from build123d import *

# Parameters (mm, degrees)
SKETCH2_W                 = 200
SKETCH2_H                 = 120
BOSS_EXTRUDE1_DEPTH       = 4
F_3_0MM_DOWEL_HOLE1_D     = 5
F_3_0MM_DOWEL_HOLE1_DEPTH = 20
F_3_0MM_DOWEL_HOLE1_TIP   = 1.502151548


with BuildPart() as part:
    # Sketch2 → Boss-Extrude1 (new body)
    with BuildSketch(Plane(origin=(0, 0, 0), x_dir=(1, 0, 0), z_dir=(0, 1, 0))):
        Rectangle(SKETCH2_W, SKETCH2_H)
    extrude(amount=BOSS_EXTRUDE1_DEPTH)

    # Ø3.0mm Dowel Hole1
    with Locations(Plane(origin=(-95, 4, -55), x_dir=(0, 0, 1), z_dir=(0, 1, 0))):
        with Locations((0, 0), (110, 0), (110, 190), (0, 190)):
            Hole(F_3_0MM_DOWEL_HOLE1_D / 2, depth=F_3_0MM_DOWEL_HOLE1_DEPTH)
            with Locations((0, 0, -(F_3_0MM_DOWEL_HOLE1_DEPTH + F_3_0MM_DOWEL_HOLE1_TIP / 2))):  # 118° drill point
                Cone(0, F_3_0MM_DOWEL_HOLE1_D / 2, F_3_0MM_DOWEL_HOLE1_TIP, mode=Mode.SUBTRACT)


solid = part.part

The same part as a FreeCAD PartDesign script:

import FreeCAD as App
import Part
import Sketcher
from FreeCAD import Vector

doc = App.newDocument("Part")
body = doc.addObject("PartDesign::Body", "Body")

sketch1 = body.newObject("Sketcher::SketchObject", "Sketch")
sketch1.AttachmentSupport = (doc.getObject("XZ_Plane"), [""])
sketch1.MapMode = "FlatFace"
sketch1.addGeometry([
    Part.LineSegment(Vector(-100, -60, 0), Vector(-100, 60, 0)),
    Part.LineSegment(Vector(-100, 60, 0), Vector(100, 60, 0)),
    Part.LineSegment(Vector(100, 60, 0), Vector(100, -60, 0)),
    Part.LineSegment(Vector(100, -60, 0), Vector(-100, -60, 0)),
], False)
sketch1.addConstraint([
    Sketcher.Constraint("Coincident", 0, 2, 1, 1),
    Sketcher.Constraint("Coincident", 1, 2, 2, 1),
    Sketcher.Constraint("Coincident", 2, 2, 3, 1),
    Sketcher.Constraint("Coincident", 3, 2, 0, 1),
    Sketcher.Constraint("Vertical", 0),
    Sketcher.Constraint("Horizontal", 1),
    Sketcher.Constraint("Vertical", 2),
    Sketcher.Constraint("Horizontal", 3),
    Sketcher.Constraint("Symmetric", 0, 2, 2, 2, -1, 1),
    Sketcher.Constraint("DistanceX", 1, 1, 1, 2, 200.0),
    Sketcher.Constraint("DistanceY", 0, 1, 0, 2, 120.0),
])
pad1 = body.newObject("PartDesign::Pad", "Pad")
pad1.Profile = sketch1
pad1.Length = 4
pad1.Reversed = True

sketch2 = body.newObject("Sketcher::SketchObject", "Sketch001")
sketch2.AttachmentSupport = (doc.getObject("XZ_Plane"), [""])
sketch2.MapMode = "FlatFace"
sketch2.AttachmentOffset = App.Placement(Vector(0, 0, -4), App.Rotation())
sketch2.addGeometry([
    Part.Circle(Vector(-95, -55, 0), Vector(0, 0, 1), 2.5),
    Part.Circle(Vector(-95, 55, 0), Vector(0, 0, 1), 2.5),
    Part.Circle(Vector(95, 55, 0), Vector(0, 0, 1), 2.5),
    Part.Circle(Vector(95, -55, 0), Vector(0, 0, 1), 2.5),
], False)
sketch2.addConstraint([
    Sketcher.Constraint("Equal", 0, 1),
    Sketcher.Constraint("Equal", 1, 2),
    Sketcher.Constraint("Equal", 2, 3),
    Sketcher.Constraint("Symmetric", 0, 3, 2, 3, -1, 1),
    Sketcher.Constraint("Symmetric", 1, 3, 3, 3, -1, 1),
    Sketcher.Constraint("Symmetric", 1, 3, 2, 3, -2),
    Sketcher.Constraint("Diameter", 0, 5.0),
    Sketcher.Constraint("DistanceX", 0, 3, -1, 1, 95.0),
    Sketcher.Constraint("DistanceY", 0, 3, -1, 1, 55.0),
])
doc.recompute()
hole = body.newObject("PartDesign::Hole", "Hole")
hole.Profile = sketch2
hole.ThreadType = "None"
hole.Diameter = 5
hole.DepthType = "Dimension"
hole.Depth = 20
hole.DrillPoint = "Angled"
hole.DrillPointAngle = 118
hole.Reversed = True

doc.recompute()
